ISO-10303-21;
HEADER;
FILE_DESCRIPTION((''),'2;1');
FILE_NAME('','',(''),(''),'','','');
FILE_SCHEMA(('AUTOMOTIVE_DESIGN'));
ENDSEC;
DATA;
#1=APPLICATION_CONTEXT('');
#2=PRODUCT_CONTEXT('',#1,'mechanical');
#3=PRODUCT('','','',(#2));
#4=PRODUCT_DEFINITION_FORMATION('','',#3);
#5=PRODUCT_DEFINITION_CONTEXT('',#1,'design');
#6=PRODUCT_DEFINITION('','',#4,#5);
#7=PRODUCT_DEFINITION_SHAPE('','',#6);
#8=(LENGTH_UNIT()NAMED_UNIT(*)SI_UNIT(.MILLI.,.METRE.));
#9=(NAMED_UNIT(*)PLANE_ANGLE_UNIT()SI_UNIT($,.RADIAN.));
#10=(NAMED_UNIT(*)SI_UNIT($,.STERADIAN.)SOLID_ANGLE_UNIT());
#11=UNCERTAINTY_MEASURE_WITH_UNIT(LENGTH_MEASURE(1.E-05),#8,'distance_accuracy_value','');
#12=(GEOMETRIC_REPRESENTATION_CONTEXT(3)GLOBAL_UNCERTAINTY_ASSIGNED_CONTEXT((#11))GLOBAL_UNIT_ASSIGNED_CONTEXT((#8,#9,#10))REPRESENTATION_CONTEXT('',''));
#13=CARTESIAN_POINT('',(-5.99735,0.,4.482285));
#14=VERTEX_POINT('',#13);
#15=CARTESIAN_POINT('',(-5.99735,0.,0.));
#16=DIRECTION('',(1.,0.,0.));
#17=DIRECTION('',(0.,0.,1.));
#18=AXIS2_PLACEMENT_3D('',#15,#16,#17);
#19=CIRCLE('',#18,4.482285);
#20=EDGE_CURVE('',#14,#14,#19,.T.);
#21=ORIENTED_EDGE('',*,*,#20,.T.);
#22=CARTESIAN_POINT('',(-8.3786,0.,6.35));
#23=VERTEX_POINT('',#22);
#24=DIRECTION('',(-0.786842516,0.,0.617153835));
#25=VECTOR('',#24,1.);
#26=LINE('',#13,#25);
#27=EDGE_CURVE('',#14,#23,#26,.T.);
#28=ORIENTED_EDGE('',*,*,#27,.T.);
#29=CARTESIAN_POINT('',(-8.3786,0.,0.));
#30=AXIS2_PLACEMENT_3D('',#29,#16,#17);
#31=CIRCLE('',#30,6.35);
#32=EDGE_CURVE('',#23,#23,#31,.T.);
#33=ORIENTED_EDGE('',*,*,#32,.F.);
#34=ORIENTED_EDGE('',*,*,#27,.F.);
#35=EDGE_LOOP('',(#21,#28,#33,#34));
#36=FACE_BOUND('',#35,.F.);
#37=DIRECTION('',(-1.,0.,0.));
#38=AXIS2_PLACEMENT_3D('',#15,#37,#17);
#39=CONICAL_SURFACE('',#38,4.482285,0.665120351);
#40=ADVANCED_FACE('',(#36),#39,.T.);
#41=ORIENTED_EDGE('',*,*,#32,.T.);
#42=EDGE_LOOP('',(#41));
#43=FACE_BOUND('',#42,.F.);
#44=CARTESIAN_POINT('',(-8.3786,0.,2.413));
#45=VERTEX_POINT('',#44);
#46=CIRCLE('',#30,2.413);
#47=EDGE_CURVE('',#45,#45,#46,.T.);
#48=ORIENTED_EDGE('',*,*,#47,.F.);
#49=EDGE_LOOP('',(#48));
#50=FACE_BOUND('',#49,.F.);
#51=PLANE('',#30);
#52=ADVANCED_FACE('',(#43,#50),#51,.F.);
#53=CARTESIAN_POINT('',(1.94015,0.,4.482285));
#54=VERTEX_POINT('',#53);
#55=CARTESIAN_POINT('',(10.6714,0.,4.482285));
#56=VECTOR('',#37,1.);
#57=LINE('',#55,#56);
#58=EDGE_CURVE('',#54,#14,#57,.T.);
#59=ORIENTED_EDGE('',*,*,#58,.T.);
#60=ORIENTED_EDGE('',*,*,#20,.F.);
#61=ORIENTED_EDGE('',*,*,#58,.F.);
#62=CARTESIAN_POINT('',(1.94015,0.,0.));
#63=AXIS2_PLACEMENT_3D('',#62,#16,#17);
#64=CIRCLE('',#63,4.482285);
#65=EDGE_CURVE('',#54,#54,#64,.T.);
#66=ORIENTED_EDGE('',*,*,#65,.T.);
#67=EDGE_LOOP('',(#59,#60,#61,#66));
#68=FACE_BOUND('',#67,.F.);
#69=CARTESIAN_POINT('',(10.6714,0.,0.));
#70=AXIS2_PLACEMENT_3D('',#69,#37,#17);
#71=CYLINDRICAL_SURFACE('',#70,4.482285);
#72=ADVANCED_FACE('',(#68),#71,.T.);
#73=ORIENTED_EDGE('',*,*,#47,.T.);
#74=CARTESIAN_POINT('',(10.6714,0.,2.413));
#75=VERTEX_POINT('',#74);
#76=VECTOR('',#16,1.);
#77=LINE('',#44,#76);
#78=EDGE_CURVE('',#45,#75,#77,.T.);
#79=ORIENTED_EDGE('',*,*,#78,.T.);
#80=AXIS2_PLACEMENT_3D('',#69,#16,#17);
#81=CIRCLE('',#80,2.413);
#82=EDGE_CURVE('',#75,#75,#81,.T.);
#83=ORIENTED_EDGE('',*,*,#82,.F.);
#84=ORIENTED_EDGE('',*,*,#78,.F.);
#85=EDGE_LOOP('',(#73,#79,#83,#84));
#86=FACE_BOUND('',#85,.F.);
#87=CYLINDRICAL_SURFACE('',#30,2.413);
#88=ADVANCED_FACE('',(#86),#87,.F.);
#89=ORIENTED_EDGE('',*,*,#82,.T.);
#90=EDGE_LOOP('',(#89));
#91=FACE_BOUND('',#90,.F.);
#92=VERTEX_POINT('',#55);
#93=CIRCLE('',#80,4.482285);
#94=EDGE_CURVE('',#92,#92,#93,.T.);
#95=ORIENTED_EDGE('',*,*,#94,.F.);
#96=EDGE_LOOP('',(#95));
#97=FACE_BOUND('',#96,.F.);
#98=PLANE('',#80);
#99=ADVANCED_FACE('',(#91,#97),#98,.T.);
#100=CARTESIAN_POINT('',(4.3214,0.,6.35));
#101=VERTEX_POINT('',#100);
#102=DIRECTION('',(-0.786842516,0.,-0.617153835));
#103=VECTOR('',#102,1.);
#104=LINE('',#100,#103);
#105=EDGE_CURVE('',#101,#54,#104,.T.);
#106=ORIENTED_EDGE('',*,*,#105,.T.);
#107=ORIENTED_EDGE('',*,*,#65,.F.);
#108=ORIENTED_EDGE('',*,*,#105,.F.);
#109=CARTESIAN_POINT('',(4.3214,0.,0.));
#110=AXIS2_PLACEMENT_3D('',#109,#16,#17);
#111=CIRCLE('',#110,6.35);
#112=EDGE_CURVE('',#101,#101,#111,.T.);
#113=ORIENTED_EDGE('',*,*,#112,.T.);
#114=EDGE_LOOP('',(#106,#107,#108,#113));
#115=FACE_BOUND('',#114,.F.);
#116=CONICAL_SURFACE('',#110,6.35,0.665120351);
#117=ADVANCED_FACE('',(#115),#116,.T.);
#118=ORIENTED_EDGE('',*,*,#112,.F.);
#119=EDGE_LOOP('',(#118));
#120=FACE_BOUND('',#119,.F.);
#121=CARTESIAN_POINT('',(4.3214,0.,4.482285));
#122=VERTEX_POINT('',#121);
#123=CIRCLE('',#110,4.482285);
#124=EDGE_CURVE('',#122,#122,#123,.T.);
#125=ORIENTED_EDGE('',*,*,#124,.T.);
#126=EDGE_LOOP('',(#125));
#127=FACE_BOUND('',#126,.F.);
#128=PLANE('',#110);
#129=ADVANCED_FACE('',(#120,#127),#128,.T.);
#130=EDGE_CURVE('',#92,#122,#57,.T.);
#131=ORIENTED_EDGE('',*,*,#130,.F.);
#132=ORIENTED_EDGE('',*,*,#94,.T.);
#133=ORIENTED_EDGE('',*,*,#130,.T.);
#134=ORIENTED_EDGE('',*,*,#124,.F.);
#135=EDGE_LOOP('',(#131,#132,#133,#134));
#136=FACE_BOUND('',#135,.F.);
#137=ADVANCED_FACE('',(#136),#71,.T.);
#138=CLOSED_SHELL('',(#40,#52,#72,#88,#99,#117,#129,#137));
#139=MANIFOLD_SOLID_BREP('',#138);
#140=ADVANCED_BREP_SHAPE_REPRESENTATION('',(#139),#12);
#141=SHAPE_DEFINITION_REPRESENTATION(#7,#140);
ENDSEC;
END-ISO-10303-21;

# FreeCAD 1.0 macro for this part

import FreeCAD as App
import Part
import Sketcher
from FreeCAD import Vector
Q = App.Units.Quantity


def add_polygon(sketch, points):
    """Adds a closed chain of lines whose ends are joined by coincident constraints."""
    first, n = sketch.GeometryCount, len(points)
    for a, b in zip(points, points[1:] + points[:1]):
        sketch.addGeometry(Part.LineSegment(App.Vector(*a, 0), App.Vector(*b, 0)), False)
    for i in range(n):
        sketch.addConstraint(Sketcher.Constraint("Coincident", first + i, 2, first + (i + 1) % n, 1))

doc = App.newDocument("Part")
body = doc.addObject("PartDesign::Body", "Body")

# Sketch on XZ plane
sketch1 = body.newObject("Sketcher::SketchObject", "Sketch")
sketch1.AttachmentSupport = (doc.getObject("XZ_Plane"), [""])
sketch1.MapMode = "FlatFace"
add_polygon(sketch1, [(-8.4, 6.3), (-8.4, 2.4), (10.7, 2.4), (10.7, 4.5), (4.3, 4.5), (4.3, 6.3), (1.9, 4.5), (-6, 4.5)])  # lines 0-7
sketch1.addConstraint(Sketcher.Constraint("Vertical", 0))
sketch1.addConstraint(Sketcher.Constraint("Horizontal", 1))
sketch1.addConstraint(Sketcher.Constraint("Vertical", 2))
sketch1.addConstraint(Sketcher.Constraint("Horizontal", 3))
sketch1.addConstraint(Sketcher.Constraint("Vertical", 4))
sketch1.addConstraint(Sketcher.Constraint("Horizontal", 6))
sketch1.addConstraint(Sketcher.Constraint("Horizontal", 3, 2, 5, 2))
sketch1.addConstraint(Sketcher.Constraint("Horizontal", 4, 2, 7, 2))
sketch1.addConstraint(Sketcher.Constraint("Equal", 5, 7))
sketch1.addConstraint(Sketcher.Constraint("DistanceX", 1, 1, 1, 2, Q("0.75 in")))
sketch1.addConstraint(Sketcher.Constraint("DistanceX", 3, 2, 3, 1, Q("0.25 in")))
sketch1.addConstraint(Sketcher.Constraint("DistanceX", 6, 2, 6, 1, Q("0.3125 in")))
sketch1.addConstraint(Sketcher.Constraint("DistanceY", 0, 2, 0, 1, Q("0.155 in")))
sketch1.addConstraint(Sketcher.Constraint("DistanceY", -1, 1, 4, 2, Q("0.25 in")))
sketch1.addConstraint(Sketcher.Constraint("DistanceX", 0, 2, -1, 1, 8.3786))
sketch1.addConstraint(Sketcher.Constraint("DistanceY", 2, 1, 2, 2, 2.069285))
revolution = body.newObject("PartDesign::Revolution", "Revolution")
revolution.Profile = sketch1
revolution.ReferenceAxis = (sketch1, ["H_Axis"])
revolution.Angle = 360

doc.recompute()
